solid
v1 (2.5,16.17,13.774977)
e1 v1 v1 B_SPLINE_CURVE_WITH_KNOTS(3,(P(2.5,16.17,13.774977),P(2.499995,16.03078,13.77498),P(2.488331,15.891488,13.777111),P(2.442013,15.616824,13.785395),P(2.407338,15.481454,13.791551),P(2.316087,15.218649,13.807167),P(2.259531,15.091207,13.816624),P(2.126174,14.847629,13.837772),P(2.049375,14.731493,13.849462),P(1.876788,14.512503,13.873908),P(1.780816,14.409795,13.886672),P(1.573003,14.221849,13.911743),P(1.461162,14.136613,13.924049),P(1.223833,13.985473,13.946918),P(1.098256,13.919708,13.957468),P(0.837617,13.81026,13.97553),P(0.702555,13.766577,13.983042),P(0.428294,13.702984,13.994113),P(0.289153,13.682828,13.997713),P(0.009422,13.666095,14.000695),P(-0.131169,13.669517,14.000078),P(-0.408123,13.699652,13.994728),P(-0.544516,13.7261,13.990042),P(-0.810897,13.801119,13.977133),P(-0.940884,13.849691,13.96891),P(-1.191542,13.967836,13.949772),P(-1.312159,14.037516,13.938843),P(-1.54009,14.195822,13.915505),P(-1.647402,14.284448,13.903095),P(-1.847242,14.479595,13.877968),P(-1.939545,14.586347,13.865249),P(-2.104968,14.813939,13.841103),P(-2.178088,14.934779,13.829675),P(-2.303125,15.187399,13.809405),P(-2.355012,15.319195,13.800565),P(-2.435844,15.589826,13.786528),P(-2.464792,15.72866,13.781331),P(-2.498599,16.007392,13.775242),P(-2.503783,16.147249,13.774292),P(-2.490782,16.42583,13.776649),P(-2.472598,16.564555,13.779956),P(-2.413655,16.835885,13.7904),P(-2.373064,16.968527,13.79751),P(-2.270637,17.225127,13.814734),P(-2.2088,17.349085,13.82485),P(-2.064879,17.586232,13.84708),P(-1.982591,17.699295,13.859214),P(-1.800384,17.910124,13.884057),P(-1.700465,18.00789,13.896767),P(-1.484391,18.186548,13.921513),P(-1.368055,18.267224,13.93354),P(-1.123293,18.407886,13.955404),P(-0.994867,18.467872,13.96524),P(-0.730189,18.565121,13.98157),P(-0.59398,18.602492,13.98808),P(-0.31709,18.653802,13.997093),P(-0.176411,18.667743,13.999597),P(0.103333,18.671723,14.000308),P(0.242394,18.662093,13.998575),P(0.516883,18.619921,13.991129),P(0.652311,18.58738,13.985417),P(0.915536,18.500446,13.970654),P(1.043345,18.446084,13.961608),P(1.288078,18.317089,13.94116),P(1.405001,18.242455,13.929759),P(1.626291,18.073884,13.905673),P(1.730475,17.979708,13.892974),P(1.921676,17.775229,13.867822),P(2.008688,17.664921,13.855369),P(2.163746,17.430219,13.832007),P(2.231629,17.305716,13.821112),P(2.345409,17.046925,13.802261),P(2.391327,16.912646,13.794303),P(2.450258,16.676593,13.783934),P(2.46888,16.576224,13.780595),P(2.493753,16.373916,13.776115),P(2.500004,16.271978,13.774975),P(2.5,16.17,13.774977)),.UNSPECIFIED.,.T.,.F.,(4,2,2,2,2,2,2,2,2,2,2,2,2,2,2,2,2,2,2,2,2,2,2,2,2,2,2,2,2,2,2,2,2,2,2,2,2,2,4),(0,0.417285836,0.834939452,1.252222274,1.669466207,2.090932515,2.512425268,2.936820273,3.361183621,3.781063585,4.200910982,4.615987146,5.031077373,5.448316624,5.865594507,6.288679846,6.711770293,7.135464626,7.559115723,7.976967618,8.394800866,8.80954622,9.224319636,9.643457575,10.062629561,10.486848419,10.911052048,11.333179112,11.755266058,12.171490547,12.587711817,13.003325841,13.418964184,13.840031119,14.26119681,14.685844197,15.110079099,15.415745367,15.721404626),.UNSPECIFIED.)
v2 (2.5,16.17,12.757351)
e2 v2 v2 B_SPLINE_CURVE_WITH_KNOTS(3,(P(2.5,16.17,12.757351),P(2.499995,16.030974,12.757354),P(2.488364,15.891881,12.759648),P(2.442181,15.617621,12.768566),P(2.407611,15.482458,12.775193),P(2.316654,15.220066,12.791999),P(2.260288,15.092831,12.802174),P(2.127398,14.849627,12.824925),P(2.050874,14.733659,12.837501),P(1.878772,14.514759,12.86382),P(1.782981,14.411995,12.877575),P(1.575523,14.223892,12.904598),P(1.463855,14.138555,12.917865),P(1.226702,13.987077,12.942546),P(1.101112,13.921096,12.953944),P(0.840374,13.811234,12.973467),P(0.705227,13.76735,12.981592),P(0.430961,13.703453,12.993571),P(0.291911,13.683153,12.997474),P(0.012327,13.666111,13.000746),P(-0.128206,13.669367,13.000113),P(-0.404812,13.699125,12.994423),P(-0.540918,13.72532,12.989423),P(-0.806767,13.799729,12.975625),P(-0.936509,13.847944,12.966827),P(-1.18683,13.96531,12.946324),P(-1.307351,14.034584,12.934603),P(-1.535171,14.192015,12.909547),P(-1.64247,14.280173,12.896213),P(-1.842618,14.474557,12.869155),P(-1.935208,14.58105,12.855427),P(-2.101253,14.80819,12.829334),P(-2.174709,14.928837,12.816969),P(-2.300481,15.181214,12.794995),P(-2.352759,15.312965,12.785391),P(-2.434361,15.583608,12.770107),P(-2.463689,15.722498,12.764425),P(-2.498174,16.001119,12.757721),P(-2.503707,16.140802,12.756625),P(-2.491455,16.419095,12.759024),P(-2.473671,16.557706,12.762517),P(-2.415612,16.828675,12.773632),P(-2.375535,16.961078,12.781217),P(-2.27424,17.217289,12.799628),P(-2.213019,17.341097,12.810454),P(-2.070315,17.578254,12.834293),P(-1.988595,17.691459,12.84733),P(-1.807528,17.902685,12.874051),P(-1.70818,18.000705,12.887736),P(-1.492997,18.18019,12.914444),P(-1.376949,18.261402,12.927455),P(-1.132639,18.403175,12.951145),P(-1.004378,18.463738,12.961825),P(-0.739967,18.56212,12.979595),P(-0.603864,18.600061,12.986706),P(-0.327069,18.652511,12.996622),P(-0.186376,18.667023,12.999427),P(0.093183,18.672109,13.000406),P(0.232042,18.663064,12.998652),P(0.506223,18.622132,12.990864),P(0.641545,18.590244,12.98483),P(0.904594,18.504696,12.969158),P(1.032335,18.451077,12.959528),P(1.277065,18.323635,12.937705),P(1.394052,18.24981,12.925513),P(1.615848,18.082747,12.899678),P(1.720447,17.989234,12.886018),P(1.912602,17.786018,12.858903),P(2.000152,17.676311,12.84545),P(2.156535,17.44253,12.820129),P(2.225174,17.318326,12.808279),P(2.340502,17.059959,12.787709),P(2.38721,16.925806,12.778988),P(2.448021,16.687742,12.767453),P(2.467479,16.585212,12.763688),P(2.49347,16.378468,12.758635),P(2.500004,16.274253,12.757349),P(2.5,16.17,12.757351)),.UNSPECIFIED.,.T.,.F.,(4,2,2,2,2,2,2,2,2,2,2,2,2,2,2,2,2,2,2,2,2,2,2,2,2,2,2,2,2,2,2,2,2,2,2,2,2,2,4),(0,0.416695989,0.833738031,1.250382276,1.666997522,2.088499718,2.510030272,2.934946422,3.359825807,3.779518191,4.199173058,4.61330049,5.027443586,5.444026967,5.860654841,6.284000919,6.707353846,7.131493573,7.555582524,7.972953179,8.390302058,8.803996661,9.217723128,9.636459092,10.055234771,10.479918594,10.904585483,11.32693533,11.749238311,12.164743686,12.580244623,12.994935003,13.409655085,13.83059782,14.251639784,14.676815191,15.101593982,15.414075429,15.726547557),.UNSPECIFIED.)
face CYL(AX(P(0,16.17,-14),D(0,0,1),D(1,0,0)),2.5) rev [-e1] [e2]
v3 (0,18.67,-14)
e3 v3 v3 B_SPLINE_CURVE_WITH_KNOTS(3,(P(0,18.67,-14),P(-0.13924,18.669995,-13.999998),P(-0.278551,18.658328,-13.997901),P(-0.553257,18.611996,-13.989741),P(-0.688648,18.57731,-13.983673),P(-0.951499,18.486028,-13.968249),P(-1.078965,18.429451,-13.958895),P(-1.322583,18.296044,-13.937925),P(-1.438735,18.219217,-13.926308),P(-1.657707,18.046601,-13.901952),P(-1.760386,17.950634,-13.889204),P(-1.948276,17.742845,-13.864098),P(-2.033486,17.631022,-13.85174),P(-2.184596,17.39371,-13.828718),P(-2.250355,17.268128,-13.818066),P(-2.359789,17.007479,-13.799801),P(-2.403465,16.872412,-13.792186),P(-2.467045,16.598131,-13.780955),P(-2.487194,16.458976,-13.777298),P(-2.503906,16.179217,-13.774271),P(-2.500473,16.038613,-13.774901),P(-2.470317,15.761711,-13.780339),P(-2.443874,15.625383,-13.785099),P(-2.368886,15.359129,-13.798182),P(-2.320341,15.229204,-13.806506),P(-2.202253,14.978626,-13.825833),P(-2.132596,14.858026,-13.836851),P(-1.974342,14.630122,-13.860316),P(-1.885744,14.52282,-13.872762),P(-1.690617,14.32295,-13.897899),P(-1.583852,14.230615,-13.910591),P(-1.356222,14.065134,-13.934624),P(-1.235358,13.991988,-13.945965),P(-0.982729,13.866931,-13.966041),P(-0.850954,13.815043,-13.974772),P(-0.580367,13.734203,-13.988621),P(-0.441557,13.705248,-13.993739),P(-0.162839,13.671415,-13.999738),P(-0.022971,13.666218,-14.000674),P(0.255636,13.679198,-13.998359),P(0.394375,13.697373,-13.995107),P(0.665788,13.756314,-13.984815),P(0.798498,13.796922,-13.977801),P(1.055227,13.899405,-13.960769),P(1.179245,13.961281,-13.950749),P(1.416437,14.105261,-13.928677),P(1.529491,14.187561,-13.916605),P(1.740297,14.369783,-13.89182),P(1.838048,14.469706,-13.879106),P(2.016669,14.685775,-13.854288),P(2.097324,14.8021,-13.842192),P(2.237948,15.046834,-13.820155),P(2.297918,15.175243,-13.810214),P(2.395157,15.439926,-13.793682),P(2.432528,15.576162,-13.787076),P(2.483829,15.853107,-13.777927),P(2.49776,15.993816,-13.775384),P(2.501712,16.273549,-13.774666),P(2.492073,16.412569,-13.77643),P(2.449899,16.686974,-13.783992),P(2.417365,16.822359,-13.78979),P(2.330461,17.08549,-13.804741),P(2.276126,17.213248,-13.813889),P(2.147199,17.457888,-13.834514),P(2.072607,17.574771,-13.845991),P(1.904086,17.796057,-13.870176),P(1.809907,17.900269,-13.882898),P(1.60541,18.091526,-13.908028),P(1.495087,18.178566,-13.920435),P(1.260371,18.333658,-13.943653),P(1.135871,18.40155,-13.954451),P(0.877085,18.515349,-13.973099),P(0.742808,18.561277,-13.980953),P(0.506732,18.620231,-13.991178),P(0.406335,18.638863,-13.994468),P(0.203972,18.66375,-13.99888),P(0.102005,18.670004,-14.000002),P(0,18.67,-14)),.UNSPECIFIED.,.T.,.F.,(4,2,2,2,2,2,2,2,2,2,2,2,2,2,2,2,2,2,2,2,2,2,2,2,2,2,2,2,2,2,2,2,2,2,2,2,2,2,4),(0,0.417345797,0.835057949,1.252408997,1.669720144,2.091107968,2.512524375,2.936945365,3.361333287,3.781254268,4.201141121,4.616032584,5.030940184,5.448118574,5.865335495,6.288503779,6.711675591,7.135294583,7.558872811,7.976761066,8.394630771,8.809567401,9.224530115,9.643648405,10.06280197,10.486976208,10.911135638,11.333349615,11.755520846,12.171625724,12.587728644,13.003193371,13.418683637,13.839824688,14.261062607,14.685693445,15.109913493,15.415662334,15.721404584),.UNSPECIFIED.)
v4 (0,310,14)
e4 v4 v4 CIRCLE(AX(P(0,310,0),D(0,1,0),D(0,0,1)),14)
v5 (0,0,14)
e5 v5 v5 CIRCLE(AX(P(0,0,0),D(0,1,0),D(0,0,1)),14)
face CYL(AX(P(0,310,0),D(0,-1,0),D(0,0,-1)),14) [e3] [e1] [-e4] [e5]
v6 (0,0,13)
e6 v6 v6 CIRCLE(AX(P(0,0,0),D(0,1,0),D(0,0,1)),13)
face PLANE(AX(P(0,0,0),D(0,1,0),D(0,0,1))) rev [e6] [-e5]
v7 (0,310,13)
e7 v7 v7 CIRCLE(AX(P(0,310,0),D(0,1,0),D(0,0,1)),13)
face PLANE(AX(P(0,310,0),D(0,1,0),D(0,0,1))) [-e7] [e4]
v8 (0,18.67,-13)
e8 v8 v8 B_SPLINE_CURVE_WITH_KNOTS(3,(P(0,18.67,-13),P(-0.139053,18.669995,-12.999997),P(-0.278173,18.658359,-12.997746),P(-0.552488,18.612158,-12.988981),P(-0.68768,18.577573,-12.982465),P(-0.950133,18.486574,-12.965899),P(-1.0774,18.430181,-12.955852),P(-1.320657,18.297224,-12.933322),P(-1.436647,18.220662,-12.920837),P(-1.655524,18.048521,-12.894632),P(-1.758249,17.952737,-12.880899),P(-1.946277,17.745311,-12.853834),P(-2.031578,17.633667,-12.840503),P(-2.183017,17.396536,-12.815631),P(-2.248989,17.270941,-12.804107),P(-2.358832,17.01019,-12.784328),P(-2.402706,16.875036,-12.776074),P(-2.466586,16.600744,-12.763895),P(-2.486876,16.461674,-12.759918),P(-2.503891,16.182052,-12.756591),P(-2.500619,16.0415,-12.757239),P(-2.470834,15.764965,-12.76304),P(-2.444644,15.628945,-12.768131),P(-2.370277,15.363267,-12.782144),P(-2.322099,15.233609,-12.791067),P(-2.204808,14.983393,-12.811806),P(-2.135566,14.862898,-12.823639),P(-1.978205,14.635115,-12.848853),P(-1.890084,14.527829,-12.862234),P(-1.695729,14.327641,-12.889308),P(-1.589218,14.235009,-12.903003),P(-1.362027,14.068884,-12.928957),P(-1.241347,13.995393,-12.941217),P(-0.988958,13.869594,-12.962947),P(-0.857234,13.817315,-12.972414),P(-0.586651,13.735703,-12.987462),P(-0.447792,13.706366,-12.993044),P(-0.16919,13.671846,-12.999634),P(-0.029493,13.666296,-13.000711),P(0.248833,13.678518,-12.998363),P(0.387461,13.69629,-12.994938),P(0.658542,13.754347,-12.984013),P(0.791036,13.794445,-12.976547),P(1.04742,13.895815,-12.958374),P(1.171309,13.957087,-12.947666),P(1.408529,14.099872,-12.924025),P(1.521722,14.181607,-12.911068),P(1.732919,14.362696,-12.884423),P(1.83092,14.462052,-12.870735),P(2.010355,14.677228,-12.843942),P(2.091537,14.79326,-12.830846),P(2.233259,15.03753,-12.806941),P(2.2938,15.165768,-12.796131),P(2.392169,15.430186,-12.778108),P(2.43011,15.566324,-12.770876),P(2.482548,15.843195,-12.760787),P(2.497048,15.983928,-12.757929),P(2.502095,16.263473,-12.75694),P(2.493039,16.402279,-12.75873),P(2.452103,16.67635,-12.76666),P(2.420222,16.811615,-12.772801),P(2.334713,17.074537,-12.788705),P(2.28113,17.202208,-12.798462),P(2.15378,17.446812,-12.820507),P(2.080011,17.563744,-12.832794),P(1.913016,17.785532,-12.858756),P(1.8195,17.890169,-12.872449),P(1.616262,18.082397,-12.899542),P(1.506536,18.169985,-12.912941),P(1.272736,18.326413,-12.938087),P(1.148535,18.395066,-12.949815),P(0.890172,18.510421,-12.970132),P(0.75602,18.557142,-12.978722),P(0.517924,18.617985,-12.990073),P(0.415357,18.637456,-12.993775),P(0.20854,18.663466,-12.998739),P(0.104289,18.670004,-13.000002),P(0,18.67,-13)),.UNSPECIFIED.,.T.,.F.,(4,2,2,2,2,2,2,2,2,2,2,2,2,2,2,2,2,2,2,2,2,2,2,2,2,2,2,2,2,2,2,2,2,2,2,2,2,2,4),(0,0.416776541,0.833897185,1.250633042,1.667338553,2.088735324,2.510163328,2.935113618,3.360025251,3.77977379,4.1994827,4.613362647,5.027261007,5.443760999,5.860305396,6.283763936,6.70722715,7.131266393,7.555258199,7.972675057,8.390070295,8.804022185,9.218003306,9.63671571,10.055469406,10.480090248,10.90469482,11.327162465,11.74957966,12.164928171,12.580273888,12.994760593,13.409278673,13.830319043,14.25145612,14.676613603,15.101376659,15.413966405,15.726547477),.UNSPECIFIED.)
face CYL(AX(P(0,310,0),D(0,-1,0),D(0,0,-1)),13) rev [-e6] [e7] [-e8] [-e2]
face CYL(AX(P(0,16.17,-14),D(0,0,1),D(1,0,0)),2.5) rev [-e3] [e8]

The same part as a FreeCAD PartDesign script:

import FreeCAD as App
import Part
import Sketcher
from FreeCAD import Vector

doc = App.newDocument("Part")
body = doc.addObject("PartDesign::Body", "Body")

# Sketch on XZ plane
sketch1 = body.newObject("Sketcher::SketchObject", "Sketch")
sketch1.AttachmentSupport = (doc.getObject("XZ_Plane"), [""])
sketch1.MapMode = "FlatFace"
sketch1.addGeometry([
    Part.Circle(Vector(0, 0, 0), Vector(0, 0, 1), 14),
    Part.Circle(Vector(0, 0, 0), Vector(0, 0, 1), 13),
], False)
sketch1.addConstraint([
    Sketcher.Constraint("Coincident", 0, 3, -1, 1),
    Sketcher.Constraint("Coincident", 1, 3, -1, 1),
    Sketcher.Constraint("Diameter", 0, 28.0),
    Sketcher.Constraint("Diameter", 1, 26.0),
])
pad1 = body.newObject("PartDesign::Pad", "Pad")
pad1.Profile = sketch1
pad1.Length = 310
pad1.Reversed = True

# Sketch on XY plane
sketch2 = body.newObject("Sketcher::SketchObject", "Sketch001")
sketch2.AttachmentSupport = (doc.getObject("XY_Plane"), [""])
sketch2.MapMode = "FlatFace"
sketch2.addGeometry(Part.Circle(Vector(0, 16.2, 0), Vector(0, 0, 1), 2.5), False)
sketch2.addConstraint([
    Sketcher.Constraint("PointOnObject", 0, 3, -2),
    Sketcher.Constraint("Diameter", 0, 5.0),
    Sketcher.Constraint("DistanceY", -1, 1, 0, 3, 16.17),
])
pocket1 = body.newObject("PartDesign::Pocket", "Pocket")
pocket1.Profile = sketch2
pocket1.Type = "ThroughAll"
pocket1.Midplane = True

doc.recompute()
